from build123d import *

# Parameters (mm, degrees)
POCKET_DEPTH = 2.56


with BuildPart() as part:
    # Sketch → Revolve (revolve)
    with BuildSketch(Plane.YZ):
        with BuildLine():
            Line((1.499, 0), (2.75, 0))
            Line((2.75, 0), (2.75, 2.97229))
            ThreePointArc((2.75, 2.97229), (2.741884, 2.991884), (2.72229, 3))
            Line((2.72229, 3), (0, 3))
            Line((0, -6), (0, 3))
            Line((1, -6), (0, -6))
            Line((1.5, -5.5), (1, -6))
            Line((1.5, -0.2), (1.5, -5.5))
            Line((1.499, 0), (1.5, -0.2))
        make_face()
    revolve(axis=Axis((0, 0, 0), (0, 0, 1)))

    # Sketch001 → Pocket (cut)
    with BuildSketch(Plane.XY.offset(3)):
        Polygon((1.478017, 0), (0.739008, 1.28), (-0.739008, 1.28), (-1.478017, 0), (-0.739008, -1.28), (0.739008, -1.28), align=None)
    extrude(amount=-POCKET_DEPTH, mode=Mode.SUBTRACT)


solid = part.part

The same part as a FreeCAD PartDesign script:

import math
import FreeCAD as App
import Part
import Sketcher
from FreeCAD import Vector
Q = App.Units.Quantity

doc = App.newDocument("Part")
body = doc.addObject("PartDesign::Body", "Body")

sketch1 = doc.addObject("Sketcher::SketchObject", "Sketch")
body.addObject(sketch1)
sketch1.AttachmentSupport = (doc.YZ_Plane, [""])
sketch1.MapMode = "FlatFace"
sketch1.addGeometry([
    Part.LineSegment(Vector(1.499, 0, 0), Vector(2.75, 0, 0)),
    Part.LineSegment(Vector(2.75, 0, 0), Vector(2.75, 2.972, 0)),
    Part.ArcOfCircle(Part.Circle(Vector(2.722, 2.972, 0), Vector(0, 0, 1), 0.028), math.radians(0), math.radians(90)),
    Part.LineSegment(Vector(2.722, 3, 0), Vector(0, 3, 0)),
    Part.LineSegment(Vector(0, 3, 0), Vector(0, -6, 0)),
    Part.LineSegment(Vector(0, -6, 0), Vector(1, -6, 0)),
    Part.LineSegment(Vector(1, -6, 0), Vector(1.5, -5.5, 0)),
    Part.LineSegment(Vector(1.5, -5.5, 0), Vector(1.5, -0.2, 0)),
    Part.LineSegment(Vector(1.5, -0.2, 0), Vector(1.499, 0, 0)),
], False)
sketch1.addConstraint([
    Sketcher.Constraint("Coincident", 0, 2, 1, 1),
    Sketcher.Constraint("Coincident", 1, 2, 2, 1),
    Sketcher.Constraint("Coincident", 2, 2, 3, 1),
    Sketcher.Constraint("Coincident", 3, 2, 4, 1),
    Sketcher.Constraint("Coincident", 4, 2, 5, 1),
    Sketcher.Constraint("Coincident", 5, 2, 6, 1),
    Sketcher.Constraint("Coincident", 6, 2, 7, 1),
    Sketcher.Constraint("Coincident", 7, 2, 8, 1),
    Sketcher.Constraint("Coincident", 8, 2, 0, 1),
    Sketcher.Constraint("Horizontal", 0),
    Sketcher.Constraint("Vertical", 1),
    Sketcher.Constraint("Horizontal", 3),
    Sketcher.Constraint("Vertical", 4),
    Sketcher.Constraint("Horizontal", 5),
    Sketcher.Constraint("Vertical", 7),
    Sketcher.Constraint("PointOnObject", 0, 2, -1),
    Sketcher.Constraint("PointOnObject", 3, 2, -2),
    Sketcher.Constraint("Horizontal", 2, 3, 1, 2),
    Sketcher.Constraint("DistanceX", 5, 1, 5, 2, Q("1 mm")),
    Sketcher.Constraint("DistanceY", 4, 2, 4, 1, Q("9 mm")),
    Sketcher.Constraint("Angle", 6, Q("45 deg")),
    Sketcher.Constraint("DistanceY", 7, 1, 7, 2, Q("5.3 mm")),
    Sketcher.Constraint("DistanceY", -1, 1, 2, 2, Q("3 mm")),
    Sketcher.Constraint("DistanceX", -1, 1, 6, 2, Q("1.5 mm")),
    Sketcher.Constraint("DistanceX", 0, 1, 0, 2, Q("1.251 mm")),
    Sketcher.Constraint("DistanceX", -1, 1, 0, 2, Q("2.75 mm")),
    Sketcher.Constraint("Radius", 2, Q("0.02771 mm")),
    Sketcher.Constraint("DistanceX", 3, 2, 3, 1, Q("2.72229 mm")),
])
revolution = doc.addObject("PartDesign::Revolution", "Revolution")
body.addObject(revolution)
revolution.Profile = sketch1
revolution.ReferenceAxis = (sketch1, ["V_Axis"])
revolution.Angle = 360

sketch2 = doc.addObject("Sketcher::SketchObject", "Sketch001")
body.addObject(sketch2)
sketch2.AttachmentSupport = (doc.XY_Plane, [""])
sketch2.MapMode = "FlatFace"
sketch2.AttachmentOffset = App.Placement(Vector(0, 0, 3), App.Rotation())
sketch2.addGeometry([
    Part.LineSegment(Vector(1.5, 0, 0), Vector(0.7, 1.3, 0)),
    Part.LineSegment(Vector(0.7, 1.3, 0), Vector(-0.7, 1.3, 0)),
    Part.LineSegment(Vector(-0.7, 1.3, 0), Vector(-1.5, 0, 0)),
    Part.LineSegment(Vector(-1.5, 0, 0), Vector(-0.7, -1.3, 0)),
    Part.LineSegment(Vector(-0.7, -1.3, 0), Vector(0.7, -1.3, 0)),
    Part.LineSegment(Vector(0.7, -1.3, 0), Vector(1.5, 0, 0)),
], False)
sketch2.addConstraint([
    Sketcher.Constraint("Coincident", 0, 2, 1, 1),
    Sketcher.Constraint("Coincident", 1, 2, 2, 1),
    Sketcher.Constraint("Coincident", 2, 2, 3, 1),
    Sketcher.Constraint("Coincident", 3, 2, 4, 1),
    Sketcher.Constraint("Coincident", 4, 2, 5, 1),
    Sketcher.Constraint("Coincident", 5, 2, 0, 1),
    Sketcher.Constraint("Horizontal", 1),
    Sketcher.Constraint("Horizontal", 4),
    Sketcher.Constraint("Symmetric", 0, 2, 3, 2, -1, 1),
    Sketcher.Constraint("Symmetric", 2, 2, 5, 2, -1, 1),
    Sketcher.Constraint("PointOnObject", 2, 2, -1),
    Sketcher.Constraint("Parallel", 2, 5),
    Sketcher.Constraint("Vertical", 1, 2, 3, 2),
    Sketcher.Constraint("DistanceY", -1, 1, 0, 2, Q("1.28 mm")),
    Sketcher.Constraint("DistanceX", 1, 2, 1, 1, Q("1.478016 mm")),
    Sketcher.Constraint("DistanceX", 2, 2, 1, 2, Q("0.739009 mm")),
])
pocket1 = doc.addObject("PartDesign::Pocket", "Pocket")
body.addObject(pocket1)
pocket1.Profile = sketch2
pocket1.Length = 2.56

doc.recompute()
